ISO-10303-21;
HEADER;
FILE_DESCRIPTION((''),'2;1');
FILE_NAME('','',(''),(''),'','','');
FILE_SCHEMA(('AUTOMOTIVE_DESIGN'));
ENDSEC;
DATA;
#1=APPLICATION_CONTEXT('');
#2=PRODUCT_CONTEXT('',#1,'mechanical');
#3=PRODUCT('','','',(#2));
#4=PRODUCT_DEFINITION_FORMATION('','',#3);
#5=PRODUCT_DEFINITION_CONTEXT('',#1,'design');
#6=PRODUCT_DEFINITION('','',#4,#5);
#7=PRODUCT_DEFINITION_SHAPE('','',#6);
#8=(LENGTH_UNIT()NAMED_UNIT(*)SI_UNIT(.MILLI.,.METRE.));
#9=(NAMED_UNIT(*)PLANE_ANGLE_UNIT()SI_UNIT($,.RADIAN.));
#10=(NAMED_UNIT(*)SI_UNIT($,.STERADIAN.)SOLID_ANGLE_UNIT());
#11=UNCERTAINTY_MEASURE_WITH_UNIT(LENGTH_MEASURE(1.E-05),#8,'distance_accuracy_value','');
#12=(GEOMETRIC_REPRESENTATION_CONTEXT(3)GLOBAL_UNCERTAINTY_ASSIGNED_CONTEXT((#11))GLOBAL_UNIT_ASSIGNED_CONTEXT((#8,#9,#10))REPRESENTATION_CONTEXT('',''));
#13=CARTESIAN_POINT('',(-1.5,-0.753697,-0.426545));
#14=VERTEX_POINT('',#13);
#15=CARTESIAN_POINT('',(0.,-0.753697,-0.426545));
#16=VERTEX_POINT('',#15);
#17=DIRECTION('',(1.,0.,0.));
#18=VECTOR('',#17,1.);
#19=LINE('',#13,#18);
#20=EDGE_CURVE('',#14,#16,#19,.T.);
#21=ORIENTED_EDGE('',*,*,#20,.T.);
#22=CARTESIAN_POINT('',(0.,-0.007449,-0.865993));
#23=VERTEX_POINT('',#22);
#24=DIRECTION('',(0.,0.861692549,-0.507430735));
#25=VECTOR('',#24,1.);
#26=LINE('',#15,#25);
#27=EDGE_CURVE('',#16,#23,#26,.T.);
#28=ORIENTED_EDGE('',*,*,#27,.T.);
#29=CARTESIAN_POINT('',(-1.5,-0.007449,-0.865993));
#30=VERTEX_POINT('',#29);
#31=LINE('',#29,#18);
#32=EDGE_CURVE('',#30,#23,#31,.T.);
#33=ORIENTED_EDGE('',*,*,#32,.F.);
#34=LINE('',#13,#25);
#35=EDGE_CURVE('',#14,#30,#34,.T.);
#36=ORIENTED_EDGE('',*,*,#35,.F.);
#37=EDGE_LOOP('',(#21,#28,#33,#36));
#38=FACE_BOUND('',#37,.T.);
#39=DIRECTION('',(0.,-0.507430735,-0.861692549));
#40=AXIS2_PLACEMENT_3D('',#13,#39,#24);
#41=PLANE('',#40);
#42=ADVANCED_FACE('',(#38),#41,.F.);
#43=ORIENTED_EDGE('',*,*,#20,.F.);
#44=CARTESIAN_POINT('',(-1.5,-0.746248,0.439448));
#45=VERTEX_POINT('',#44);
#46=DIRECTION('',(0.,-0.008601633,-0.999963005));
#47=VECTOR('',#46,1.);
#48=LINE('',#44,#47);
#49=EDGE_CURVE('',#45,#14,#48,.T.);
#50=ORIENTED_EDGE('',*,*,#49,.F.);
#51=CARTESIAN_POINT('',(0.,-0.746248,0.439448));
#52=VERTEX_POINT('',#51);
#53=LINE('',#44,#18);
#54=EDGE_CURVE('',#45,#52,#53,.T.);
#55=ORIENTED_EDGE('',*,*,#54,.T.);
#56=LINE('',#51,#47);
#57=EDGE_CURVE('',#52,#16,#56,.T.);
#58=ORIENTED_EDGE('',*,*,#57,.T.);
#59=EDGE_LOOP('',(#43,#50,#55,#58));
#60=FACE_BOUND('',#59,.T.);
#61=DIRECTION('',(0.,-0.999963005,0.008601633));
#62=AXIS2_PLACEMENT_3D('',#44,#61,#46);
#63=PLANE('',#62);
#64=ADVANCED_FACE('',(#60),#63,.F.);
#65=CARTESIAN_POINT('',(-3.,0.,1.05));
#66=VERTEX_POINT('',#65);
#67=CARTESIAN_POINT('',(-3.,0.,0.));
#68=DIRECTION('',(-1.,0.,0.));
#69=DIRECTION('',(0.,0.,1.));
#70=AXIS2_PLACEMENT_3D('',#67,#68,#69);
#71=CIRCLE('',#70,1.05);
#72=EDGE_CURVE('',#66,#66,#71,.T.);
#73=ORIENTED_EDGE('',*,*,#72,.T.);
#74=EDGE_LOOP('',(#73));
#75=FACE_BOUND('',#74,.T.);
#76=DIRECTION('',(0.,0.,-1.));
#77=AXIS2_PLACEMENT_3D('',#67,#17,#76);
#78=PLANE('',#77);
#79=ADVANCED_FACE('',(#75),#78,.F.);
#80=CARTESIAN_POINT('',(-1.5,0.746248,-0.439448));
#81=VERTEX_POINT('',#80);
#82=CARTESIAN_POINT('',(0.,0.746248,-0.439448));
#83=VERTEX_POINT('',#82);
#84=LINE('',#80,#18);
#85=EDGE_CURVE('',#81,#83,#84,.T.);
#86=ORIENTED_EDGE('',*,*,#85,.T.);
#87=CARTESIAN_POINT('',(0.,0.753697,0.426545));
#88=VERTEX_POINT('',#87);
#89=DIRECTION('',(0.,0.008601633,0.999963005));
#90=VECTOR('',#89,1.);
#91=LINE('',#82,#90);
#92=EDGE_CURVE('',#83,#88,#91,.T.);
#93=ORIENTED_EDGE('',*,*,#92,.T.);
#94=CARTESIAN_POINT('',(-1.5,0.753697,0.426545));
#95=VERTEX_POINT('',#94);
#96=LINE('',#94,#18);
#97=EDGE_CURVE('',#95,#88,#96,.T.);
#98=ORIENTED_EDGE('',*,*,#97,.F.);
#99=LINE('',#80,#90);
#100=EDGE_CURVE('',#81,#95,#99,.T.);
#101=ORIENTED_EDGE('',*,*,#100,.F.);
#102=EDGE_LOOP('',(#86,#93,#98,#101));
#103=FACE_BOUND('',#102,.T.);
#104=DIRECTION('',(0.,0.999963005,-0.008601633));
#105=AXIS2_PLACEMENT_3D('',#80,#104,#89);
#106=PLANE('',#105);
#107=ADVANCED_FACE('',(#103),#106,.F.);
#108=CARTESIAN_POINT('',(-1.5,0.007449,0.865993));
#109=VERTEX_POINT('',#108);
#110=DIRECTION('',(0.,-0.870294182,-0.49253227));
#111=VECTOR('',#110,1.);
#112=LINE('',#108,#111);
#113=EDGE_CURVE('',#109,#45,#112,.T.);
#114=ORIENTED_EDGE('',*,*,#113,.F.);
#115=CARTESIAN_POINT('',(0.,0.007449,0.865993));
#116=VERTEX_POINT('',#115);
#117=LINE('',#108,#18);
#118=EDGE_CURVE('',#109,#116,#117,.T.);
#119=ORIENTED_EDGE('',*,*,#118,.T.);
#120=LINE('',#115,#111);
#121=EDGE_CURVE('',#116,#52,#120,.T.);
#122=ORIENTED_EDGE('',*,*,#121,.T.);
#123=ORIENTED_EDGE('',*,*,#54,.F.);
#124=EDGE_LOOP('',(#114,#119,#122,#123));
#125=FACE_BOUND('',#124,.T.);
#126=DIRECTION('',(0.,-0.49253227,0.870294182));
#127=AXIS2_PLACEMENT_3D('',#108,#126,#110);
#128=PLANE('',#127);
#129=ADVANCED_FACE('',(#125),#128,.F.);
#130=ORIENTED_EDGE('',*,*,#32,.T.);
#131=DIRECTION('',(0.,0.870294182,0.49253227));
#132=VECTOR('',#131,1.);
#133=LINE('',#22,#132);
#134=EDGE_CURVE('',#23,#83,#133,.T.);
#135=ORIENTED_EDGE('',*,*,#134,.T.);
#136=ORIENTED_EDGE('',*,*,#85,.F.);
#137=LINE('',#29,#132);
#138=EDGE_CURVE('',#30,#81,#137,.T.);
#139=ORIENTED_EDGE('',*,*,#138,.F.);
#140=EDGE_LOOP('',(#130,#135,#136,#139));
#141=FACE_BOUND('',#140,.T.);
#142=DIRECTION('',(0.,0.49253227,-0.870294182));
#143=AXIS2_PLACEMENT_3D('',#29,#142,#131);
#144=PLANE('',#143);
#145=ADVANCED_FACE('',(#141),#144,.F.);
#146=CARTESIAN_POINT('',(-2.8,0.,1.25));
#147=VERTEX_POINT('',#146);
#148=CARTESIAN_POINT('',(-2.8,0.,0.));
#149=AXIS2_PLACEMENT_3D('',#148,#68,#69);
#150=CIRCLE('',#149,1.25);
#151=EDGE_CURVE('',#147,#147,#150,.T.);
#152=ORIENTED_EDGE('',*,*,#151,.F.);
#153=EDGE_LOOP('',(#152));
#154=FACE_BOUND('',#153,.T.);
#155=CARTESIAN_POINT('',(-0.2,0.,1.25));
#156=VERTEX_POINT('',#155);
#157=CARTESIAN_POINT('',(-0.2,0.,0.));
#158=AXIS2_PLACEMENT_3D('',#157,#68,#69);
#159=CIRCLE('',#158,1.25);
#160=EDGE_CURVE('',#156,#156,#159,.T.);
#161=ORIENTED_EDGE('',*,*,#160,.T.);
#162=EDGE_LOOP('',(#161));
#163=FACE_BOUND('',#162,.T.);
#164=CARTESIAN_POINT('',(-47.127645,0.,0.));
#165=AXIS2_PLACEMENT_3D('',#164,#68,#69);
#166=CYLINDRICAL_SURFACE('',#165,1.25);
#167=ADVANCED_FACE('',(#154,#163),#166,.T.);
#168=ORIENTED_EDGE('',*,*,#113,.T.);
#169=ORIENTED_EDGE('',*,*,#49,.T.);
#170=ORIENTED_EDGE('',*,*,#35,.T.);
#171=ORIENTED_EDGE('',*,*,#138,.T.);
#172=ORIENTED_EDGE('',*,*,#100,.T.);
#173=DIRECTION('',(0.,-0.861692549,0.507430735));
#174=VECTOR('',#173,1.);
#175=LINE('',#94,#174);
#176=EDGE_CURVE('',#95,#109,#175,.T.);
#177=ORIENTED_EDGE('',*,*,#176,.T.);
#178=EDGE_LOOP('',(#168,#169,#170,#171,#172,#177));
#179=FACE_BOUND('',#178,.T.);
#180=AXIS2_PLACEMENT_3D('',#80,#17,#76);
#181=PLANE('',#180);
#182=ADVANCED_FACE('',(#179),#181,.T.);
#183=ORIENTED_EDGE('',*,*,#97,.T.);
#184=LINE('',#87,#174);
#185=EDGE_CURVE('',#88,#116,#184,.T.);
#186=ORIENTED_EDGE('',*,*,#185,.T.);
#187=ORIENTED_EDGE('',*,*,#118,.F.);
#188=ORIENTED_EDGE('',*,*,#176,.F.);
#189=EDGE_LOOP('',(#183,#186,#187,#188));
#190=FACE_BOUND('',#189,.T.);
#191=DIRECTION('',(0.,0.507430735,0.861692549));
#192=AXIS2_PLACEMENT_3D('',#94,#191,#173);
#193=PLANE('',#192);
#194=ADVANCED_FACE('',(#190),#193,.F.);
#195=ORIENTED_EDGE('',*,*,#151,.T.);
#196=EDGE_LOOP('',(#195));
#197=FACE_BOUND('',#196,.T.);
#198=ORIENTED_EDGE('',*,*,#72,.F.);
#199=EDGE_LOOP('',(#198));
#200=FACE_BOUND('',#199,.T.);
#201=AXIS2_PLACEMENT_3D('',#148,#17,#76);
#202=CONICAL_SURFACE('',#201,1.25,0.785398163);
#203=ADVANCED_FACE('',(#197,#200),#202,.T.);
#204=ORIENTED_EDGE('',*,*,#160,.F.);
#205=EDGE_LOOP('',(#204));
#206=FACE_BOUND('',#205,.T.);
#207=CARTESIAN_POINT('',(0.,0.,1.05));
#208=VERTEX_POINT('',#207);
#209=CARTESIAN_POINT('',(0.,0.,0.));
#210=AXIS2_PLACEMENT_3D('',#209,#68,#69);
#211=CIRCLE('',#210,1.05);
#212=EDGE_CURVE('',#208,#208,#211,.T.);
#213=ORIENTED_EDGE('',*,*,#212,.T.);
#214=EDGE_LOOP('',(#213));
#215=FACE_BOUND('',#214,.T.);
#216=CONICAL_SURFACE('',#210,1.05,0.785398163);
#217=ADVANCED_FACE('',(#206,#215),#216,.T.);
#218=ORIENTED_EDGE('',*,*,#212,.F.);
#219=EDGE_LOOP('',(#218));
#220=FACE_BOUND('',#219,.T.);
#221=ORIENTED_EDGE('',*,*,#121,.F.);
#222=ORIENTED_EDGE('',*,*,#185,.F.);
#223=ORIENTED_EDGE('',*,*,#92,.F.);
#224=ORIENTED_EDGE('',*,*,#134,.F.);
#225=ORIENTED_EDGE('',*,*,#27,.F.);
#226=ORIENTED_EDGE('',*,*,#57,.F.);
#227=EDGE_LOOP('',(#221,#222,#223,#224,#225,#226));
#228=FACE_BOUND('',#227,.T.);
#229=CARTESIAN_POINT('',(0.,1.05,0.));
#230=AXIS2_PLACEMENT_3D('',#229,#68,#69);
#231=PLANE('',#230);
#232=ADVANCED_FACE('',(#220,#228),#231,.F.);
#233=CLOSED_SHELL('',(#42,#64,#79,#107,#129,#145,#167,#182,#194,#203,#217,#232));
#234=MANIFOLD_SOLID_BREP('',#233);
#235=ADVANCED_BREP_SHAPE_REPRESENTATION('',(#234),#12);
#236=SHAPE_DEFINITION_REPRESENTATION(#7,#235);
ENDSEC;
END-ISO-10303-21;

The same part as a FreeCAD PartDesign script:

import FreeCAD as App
import Part
import Sketcher
Q = App.Units.Quantity

doc = App.newDocument("Part")
body = doc.addObject("PartDesign::Body", "Body")

sketch1 = doc.addObject("Sketcher::SketchObject", "Sketch")
body.addObject(sketch1)
sketch1.AttachmentSupport = (doc.XY_Plane, [""])
sketch1.MapMode = "FlatFace"
sketch1.addGeometry(Part.LineSegment(App.Vector(-3, 1.05, 0), App.Vector(-3, 0, 0)), False)
sketch1.addGeometry(Part.LineSegment(App.Vector(-3, 0, 0), App.Vector(0, 0, 0)), False)
sketch1.addGeometry(Part.LineSegment(App.Vector(0, 0, 0), App.Vector(0, 1.05, 0)), False)
sketch1.addGeometry(Part.LineSegment(App.Vector(0, 1.05, 0), App.Vector(-0.2, 1.25, 0)), False)
sketch1.addGeometry(Part.LineSegment(App.Vector(-0.2, 1.25, 0), App.Vector(-2.8, 1.25, 0)), False)
sketch1.addGeometry(Part.LineSegment(App.Vector(-2.8, 1.25, 0), App.Vector(-3, 1.05, 0)), False)
sketch1.addConstraint(Sketcher.Constraint("Coincident", 0, 2, 1, 1))
sketch1.addConstraint(Sketcher.Constraint("Coincident", 1, 2, 2, 1))
sketch1.addConstraint(Sketcher.Constraint("Coincident", 2, 2, 3, 1))
sketch1.addConstraint(Sketcher.Constraint("Coincident", 3, 2, 4, 1))
sketch1.addConstraint(Sketcher.Constraint("Coincident", 4, 2, 5, 1))
sketch1.addConstraint(Sketcher.Constraint("Coincident", 5, 2, 0, 1))
sketch1.addConstraint(Sketcher.Constraint("Vertical", 0))
sketch1.addConstraint(Sketcher.Constraint("Horizontal", 1))
sketch1.addConstraint(Sketcher.Constraint("Vertical", 2))
sketch1.addConstraint(Sketcher.Constraint("Horizontal", 4))
sketch1.addConstraint(Sketcher.Constraint("Coincident", 1, 2, -1, 1))
sketch1.addConstraint(Sketcher.Constraint("Perpendicular", 3, 5))
sketch1.addConstraint(Sketcher.Constraint("Horizontal", 2, 2, 5, 2))
sketch1.addConstraint(Sketcher.Constraint("Equal", 3, 5))
sketch1.addConstraint(Sketcher.Constraint("DistanceX", 1, 1, 1, 2, Q("3 mm")))
sketch1.addConstraint(Sketcher.Constraint("DistanceX", 4, 2, 4, 1, Q("2.6 mm")))
sketch1.addConstraint(Sketcher.Constraint("DistanceY", 0, 2, 0, 1, Q("1.05 mm")))
revolution = doc.addObject("PartDesign::Revolution", "Revolution")
body.addObject(revolution)
revolution.Profile = sketch1
revolution.ReferenceAxis = (sketch1, ["H_Axis"])
revolution.Angle = 360

sketch2 = doc.addObject("Sketcher::SketchObject", "Sketch001")
body.addObject(sketch2)
sketch2.AttachmentSupport = (doc.YZ_Plane, [""])
sketch2.MapMode = "FlatFace"
sketch2.addGeometry(Part.LineSegment(App.Vector(0.7, -0.4, 0), App.Vector(0.8, 0.4, 0)), False)
sketch2.addGeometry(Part.LineSegment(App.Vector(0.8, 0.4, 0), App.Vector(0, 0.9, 0)), False)
sketch2.addGeometry(Part.LineSegment(App.Vector(0, 0.9, 0), App.Vector(-0.7, 0.4, 0)), False)
sketch2.addGeometry(Part.LineSegment(App.Vector(-0.7, 0.4, 0), App.Vector(-0.8, -0.4, 0)), False)
sketch2.addGeometry(Part.LineSegment(App.Vector(-0.8, -0.4, 0), App.Vector(0, -0.9, 0)), False)
sketch2.addGeometry(Part.LineSegment(App.Vector(0, -0.9, 0), App.Vector(0.7, -0.4, 0)), False)
sketch2.addConstraint(Sketcher.Constraint("Coincident", 0, 2, 1, 1))
sketch2.addConstraint(Sketcher.Constraint("Coincident", 1, 2, 2, 1))
sketch2.addConstraint(Sketcher.Constraint("Coincident", 2, 2, 3, 1))
sketch2.addConstraint(Sketcher.Constraint("Coincident", 3, 2, 4, 1))
sketch2.addConstraint(Sketcher.Constraint("Coincident", 4, 2, 5, 1))
sketch2.addConstraint(Sketcher.Constraint("Coincident", 5, 2, 0, 1))
sketch2.addConstraint(Sketcher.Constraint("Symmetric", 0, 2, 3, 2, -1, 1))
sketch2.addConstraint(Sketcher.Constraint("Symmetric", 1, 2, 4, 2, -1, 1))
sketch2.addConstraint(Sketcher.Constraint("Symmetric", 2, 2, 5, 2, -1, 1))
sketch2.addConstraint(Sketcher.Constraint("Equal", 0, 1))
sketch2.addConstraint(Sketcher.Constraint("Equal", 1, 2))
sketch2.addConstraint(Sketcher.Constraint("DistanceX", 2, 2, 4, 2, Q("0.738798 mm")))
sketch2.addConstraint(Sketcher.Constraint("DistanceX", 4, 2, 1, 2, Q("0.014898 mm")))
sketch2.addConstraint(Sketcher.Constraint("DistanceX", 3, 2, 2, 2, Q("0.007449 mm")))
sketch2.addConstraint(Sketcher.Constraint("DistanceY", 3, 2, 1, 2, Q("1.292539 mm")))
pocket1 = doc.addObject("PartDesign::Pocket", "Pocket")
body.addObject(pocket1)
pocket1.Profile = sketch2
pocket1.Length = 1.5

doc.recompute()
